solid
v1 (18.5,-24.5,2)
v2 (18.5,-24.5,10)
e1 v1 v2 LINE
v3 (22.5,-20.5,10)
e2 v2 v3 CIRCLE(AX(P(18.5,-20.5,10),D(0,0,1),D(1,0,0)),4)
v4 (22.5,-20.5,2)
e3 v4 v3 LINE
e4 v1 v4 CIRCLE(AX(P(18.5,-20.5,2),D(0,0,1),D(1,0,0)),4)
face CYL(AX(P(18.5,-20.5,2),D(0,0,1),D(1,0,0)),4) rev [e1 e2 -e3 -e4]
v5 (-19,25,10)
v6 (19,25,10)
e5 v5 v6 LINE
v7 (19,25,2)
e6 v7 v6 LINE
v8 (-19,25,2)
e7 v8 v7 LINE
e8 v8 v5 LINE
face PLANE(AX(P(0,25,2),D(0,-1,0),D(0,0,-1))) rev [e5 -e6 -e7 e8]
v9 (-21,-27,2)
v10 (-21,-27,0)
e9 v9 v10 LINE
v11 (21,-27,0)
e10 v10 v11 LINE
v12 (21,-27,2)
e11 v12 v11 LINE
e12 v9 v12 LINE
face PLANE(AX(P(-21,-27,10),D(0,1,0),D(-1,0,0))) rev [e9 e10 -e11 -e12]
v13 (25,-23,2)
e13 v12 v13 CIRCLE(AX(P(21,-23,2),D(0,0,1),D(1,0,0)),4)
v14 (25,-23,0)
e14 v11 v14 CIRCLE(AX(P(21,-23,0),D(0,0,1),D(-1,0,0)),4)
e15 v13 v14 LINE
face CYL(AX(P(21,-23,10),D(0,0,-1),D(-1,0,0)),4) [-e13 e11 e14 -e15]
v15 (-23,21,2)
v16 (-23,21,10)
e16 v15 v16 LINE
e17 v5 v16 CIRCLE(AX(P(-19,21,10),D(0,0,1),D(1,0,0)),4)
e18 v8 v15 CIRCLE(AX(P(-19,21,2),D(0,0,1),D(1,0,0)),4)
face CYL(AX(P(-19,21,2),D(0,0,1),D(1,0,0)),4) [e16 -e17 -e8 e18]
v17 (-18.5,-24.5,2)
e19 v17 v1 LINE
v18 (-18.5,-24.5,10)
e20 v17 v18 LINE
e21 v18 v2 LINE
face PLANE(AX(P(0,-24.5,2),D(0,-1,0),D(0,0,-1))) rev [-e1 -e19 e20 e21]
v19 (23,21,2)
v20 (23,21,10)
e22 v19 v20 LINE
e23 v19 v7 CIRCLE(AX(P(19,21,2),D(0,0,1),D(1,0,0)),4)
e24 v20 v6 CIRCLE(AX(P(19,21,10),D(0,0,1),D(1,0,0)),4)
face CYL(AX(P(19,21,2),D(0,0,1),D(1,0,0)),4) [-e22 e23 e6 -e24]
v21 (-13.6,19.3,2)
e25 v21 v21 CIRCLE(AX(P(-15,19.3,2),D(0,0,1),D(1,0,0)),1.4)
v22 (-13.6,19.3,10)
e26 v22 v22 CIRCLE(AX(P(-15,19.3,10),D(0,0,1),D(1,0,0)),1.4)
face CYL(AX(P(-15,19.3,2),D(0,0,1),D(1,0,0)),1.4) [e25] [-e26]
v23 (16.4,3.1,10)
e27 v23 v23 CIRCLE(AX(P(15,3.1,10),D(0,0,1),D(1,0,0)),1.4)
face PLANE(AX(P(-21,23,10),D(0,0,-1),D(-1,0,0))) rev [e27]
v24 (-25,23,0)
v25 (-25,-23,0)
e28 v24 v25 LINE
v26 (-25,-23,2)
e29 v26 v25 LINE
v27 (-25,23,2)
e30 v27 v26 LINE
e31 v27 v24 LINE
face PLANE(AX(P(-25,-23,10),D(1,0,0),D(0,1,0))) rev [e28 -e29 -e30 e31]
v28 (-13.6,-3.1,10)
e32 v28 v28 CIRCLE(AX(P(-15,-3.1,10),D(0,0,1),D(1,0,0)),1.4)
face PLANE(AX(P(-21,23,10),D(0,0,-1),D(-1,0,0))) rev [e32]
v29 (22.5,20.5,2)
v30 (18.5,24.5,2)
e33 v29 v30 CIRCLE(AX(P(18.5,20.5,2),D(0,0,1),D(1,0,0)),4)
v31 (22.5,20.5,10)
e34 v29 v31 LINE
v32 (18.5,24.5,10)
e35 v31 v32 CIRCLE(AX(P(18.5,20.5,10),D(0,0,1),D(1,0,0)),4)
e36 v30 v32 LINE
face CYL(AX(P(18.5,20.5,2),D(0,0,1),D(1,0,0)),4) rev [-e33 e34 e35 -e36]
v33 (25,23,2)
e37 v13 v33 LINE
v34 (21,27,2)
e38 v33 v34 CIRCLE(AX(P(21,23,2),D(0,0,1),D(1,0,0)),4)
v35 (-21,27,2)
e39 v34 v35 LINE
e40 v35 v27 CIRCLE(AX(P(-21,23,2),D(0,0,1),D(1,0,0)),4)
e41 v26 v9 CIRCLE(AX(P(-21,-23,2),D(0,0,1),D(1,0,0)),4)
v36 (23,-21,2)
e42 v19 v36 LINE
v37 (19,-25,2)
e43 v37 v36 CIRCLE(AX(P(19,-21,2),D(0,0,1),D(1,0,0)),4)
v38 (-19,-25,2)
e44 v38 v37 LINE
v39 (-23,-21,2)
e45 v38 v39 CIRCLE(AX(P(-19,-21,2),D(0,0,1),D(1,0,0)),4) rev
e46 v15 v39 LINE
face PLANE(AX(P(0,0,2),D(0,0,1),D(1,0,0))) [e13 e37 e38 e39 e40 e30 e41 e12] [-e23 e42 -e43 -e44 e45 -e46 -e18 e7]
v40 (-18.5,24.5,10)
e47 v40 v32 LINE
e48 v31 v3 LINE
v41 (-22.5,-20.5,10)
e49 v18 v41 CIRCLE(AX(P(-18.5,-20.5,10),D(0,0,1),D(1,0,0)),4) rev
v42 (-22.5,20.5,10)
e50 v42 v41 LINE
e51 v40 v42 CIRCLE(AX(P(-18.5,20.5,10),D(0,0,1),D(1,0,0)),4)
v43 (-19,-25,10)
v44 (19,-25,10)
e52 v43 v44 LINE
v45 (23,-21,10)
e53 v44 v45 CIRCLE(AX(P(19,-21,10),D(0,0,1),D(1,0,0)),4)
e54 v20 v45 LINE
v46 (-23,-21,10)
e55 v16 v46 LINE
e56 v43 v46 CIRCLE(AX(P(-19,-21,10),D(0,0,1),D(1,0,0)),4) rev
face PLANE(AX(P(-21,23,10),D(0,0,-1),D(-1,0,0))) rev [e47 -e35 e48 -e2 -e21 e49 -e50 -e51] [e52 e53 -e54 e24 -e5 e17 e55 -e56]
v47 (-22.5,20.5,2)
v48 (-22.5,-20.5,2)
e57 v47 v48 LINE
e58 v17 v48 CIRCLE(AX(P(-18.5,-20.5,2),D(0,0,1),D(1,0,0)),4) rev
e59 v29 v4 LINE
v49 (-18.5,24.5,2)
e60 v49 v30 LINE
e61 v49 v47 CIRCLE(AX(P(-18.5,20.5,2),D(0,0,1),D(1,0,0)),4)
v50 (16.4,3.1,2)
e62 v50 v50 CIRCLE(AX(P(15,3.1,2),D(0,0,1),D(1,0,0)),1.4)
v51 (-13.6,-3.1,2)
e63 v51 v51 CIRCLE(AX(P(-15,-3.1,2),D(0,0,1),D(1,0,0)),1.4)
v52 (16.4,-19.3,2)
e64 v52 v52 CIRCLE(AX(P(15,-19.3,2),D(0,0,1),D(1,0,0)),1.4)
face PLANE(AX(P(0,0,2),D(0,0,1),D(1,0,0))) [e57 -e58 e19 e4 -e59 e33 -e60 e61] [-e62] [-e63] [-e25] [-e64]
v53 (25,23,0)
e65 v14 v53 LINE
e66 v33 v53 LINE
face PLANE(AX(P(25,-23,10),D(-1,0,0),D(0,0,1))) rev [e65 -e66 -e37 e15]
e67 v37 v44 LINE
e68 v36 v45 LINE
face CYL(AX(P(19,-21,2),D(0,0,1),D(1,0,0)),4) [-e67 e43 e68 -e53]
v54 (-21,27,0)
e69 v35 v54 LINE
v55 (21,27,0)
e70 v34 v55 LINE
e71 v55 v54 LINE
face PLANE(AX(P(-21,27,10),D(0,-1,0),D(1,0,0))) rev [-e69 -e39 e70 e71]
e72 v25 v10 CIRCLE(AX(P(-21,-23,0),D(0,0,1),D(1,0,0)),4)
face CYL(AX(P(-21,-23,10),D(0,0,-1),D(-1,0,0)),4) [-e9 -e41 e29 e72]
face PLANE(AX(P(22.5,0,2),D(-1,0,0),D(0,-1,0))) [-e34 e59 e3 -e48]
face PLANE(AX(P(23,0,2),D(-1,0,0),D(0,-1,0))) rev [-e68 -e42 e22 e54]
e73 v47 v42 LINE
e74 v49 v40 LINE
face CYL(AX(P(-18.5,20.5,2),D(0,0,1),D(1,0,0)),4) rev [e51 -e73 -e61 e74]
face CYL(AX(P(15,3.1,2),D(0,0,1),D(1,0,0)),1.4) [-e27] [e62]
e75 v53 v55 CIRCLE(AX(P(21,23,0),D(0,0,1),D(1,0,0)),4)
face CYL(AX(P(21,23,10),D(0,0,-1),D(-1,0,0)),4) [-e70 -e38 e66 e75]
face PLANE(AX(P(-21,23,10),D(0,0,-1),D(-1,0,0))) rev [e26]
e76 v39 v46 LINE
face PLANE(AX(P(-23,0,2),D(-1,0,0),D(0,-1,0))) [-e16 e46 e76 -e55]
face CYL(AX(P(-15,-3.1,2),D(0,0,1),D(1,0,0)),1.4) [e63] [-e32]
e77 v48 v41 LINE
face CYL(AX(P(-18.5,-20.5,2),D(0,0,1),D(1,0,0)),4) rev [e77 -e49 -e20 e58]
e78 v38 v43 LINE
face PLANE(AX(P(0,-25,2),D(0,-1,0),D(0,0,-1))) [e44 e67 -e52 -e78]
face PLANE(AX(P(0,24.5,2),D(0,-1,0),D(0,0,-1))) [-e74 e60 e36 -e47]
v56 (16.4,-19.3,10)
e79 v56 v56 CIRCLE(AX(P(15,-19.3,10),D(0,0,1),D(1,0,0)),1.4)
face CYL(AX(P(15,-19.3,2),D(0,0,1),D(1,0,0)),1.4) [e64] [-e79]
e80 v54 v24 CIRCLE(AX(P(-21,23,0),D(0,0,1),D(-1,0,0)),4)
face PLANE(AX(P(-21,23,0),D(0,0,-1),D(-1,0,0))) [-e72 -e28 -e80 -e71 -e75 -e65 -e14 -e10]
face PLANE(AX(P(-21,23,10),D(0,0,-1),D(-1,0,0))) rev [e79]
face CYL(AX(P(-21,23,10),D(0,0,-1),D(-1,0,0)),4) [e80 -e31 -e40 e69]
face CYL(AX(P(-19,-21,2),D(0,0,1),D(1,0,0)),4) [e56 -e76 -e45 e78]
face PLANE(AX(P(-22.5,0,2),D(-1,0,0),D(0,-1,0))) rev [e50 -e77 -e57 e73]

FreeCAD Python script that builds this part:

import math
import FreeCAD as App
import Part
import Sketcher
from FreeCAD import Vector

doc = App.newDocument("Part")
body = doc.addObject("PartDesign::Body", "Body")

# Sketch on XY plane
sketch1 = body.newObject("Sketcher::SketchObject", "Sketch")
sketch1.AttachmentSupport = (doc.getObject("XY_Plane"), [""])
sketch1.MapMode = "FlatFace"
sketch1.addGeometry([
    Part.LineSegment(Vector(-21, -27, 0), Vector(21, -27, 0)),  # 0
    Part.ArcOfCircle(Part.Circle(Vector(21, -23, 0), Vector(0, 0, 1), 4), math.radians(-90), math.radians(0)),  # 1
    Part.LineSegment(Vector(25, -23, 0), Vector(25, 23, 0)),  # 2
    Part.ArcOfCircle(Part.Circle(Vector(21, 23, 0), Vector(0, 0, 1), 4), math.radians(0), math.radians(90)),  # 3
    Part.LineSegment(Vector(21, 27, 0), Vector(-21, 27, 0)),  # 4
    Part.ArcOfCircle(Part.Circle(Vector(-21, 23, 0), Vector(0, 0, 1), 4), math.radians(90), math.radians(180)),  # 5
    Part.LineSegment(Vector(-25, 23, 0), Vector(-25, -23, 0)),  # 6
    Part.ArcOfCircle(Part.Circle(Vector(-21, -23, 0), Vector(0, 0, 1), 4), math.radians(180), math.radians(270)),  # 7
], False)
sketch1.addConstraint([
    Sketcher.Constraint("Tangent", 0, 2, 1, 1),
    Sketcher.Constraint("Tangent", 1, 2, 2, 1),
    Sketcher.Constraint("Tangent", 2, 2, 3, 1),
    Sketcher.Constraint("Tangent", 3, 2, 4, 1),
    Sketcher.Constraint("Tangent", 4, 2, 5, 1),
    Sketcher.Constraint("Tangent", 5, 2, 6, 1),
    Sketcher.Constraint("Tangent", 6, 2, 7, 1),
    Sketcher.Constraint("Tangent", 7, 2, 0, 1),
    Sketcher.Constraint("Horizontal", 0),
    Sketcher.Constraint("Vertical", 2),
    Sketcher.Constraint("Horizontal", 4),
    Sketcher.Constraint("Vertical", 6),
    Sketcher.Constraint("Equal", 1, 3),
    Sketcher.Constraint("Equal", 3, 5),
    Sketcher.Constraint("Equal", 5, 7),
    Sketcher.Constraint("Symmetric", 1, 3, 5, 3, -1, 1),
    Sketcher.Constraint("Radius", 1, 4.0),
    Sketcher.Constraint("DistanceX", 0, 1, 0, 2, 42.0),
    Sketcher.Constraint("DistanceY", 2, 1, 2, 2, 46.0),
])
pad1 = body.newObject("PartDesign::Pad", "Pad")
pad1.Profile = sketch1
pad1.Length = 10

# Sketch on XY plane
sketch2 = body.newObject("Sketcher::SketchObject", "Sketch001")
sketch2.AttachmentSupport = (doc.getObject("XY_Plane"), [""])
sketch2.MapMode = "FlatFace"
sketch2.AttachmentOffset = App.Placement(Vector(0, 0, 10), App.Rotation())
sketch2.addGeometry([
    Part.LineSegment(Vector(21, 27, 0), Vector(-21, 27, 0)),  # 0
    Part.ArcOfCircle(Part.Circle(Vector(-21, 23, 0), Vector(0, 0, 1), 4), math.radians(90), math.radians(180)),  # 1
    Part.LineSegment(Vector(-25, 23, 0), Vector(-25, -23, 0)),  # 2
    Part.ArcOfCircle(Part.Circle(Vector(-21, -23, 0), Vector(0, 0, 1), 4), math.radians(180), math.radians(270)),  # 3
    Part.LineSegment(Vector(-21, -27, 0), Vector(21, -27, 0)),  # 4
    Part.ArcOfCircle(Part.Circle(Vector(21, -23, 0), Vector(0, 0, 1), 4), math.radians(-90), math.radians(0)),  # 5
    Part.LineSegment(Vector(25, -23, 0), Vector(25, 23, 0)),  # 6
    Part.ArcOfCircle(Part.Circle(Vector(21, 23, 0), Vector(0, 0, 1), 4), math.radians(0), math.radians(90)),  # 7
    Part.LineSegment(Vector(19, -25, 0), Vector(-19, -25, 0)),  # 8
    Part.ArcOfCircle(Part.Circle(Vector(-19, -21, 0), Vector(0, 0, 1), 4), math.radians(180), math.radians(270)),  # 9
    Part.LineSegment(Vector(-23, -21, 0), Vector(-23, 21, 0)),  # 10
    Part.ArcOfCircle(Part.Circle(Vector(-19, 21, 0), Vector(0, 0, 1), 4), math.radians(90), math.radians(180)),  # 11
    Part.LineSegment(Vector(-19, 25, 0), Vector(19, 25, 0)),  # 12
    Part.ArcOfCircle(Part.Circle(Vector(19, 21, 0), Vector(0, 0, 1), 4), math.radians(0), math.radians(90)),  # 13
    Part.LineSegment(Vector(23, 21, 0), Vector(23, -21, 0)),  # 14
    Part.ArcOfCircle(Part.Circle(Vector(19, -21, 0), Vector(0, 0, 1), 4), math.radians(-90), math.radians(0)),  # 15
    Part.LineSegment(Vector(-18.5, -24.5, 0), Vector(18.5, -24.5, 0)),  # 16
    Part.ArcOfCircle(Part.Circle(Vector(18.5, -20.5, 0), Vector(0, 0, 1), 4), math.radians(-90), math.radians(0)),  # 17
    Part.LineSegment(Vector(22.5, -20.5, 0), Vector(22.5, 20.5, 0)),  # 18
    Part.ArcOfCircle(Part.Circle(Vector(18.5, 20.5, 0), Vector(0, 0, 1), 4), math.radians(0), math.radians(90)),  # 19
    Part.LineSegment(Vector(18.5, 24.5, 0), Vector(-18.5, 24.5, 0)),  # 20
    Part.ArcOfCircle(Part.Circle(Vector(-18.5, 20.5, 0), Vector(0, 0, 1), 4), math.radians(90), math.radians(180)),  # 21
    Part.LineSegment(Vector(-22.5, 20.5, 0), Vector(-22.5, -20.5, 0)),  # 22
    Part.ArcOfCircle(Part.Circle(Vector(-18.5, -20.5, 0), Vector(0, 0, 1), 4), math.radians(180), math.radians(270)),  # 23
    Part.Circle(Vector(-15, -3.1, 0), Vector(0, 0, 1), 1.4),  # 24
    Part.Circle(Vector(15, -19.3, 0), Vector(0, 0, 1), 1.4),  # 25
    Part.Circle(Vector(-15, 19.3, 0), Vector(0, 0, 1), 1.4),  # 26
    Part.Circle(Vector(15, 3.1, 0), Vector(0, 0, 1), 1.4),  # 27
], False)
sketch2.addConstraint([
    Sketcher.Constraint("Tangent", 0, 2, 1, 1),
    Sketcher.Constraint("Tangent", 1, 2, 2, 1),
    Sketcher.Constraint("Tangent", 2, 2, 3, 1),
    Sketcher.Constraint("Tangent", 3, 2, 4, 1),
    Sketcher.Constraint("Tangent", 4, 2, 5, 1),
    Sketcher.Constraint("Tangent", 5, 2, 6, 1),
    Sketcher.Constraint("Tangent", 6, 2, 7, 1),
    Sketcher.Constraint("Tangent", 7, 2, 0, 1),
    Sketcher.Constraint("Tangent", 8, 2, 9, 2),
    Sketcher.Constraint("Tangent", 9, 1, 10, 1),
    Sketcher.Constraint("Tangent", 10, 2, 11, 2),
    Sketcher.Constraint("Tangent", 11, 1, 12, 1),
    Sketcher.Constraint("Tangent", 12, 2, 13, 2),
    Sketcher.Constraint("Tangent", 13, 1, 14, 1),
    Sketcher.Constraint("Tangent", 14, 2, 15, 2),
    Sketcher.Constraint("Tangent", 15, 1, 8, 1),
    Sketcher.Constraint("Tangent", 16, 2, 17, 1),
    Sketcher.Constraint("Tangent", 17, 2, 18, 1),
    Sketcher.Constraint("Tangent", 18, 2, 19, 1),
    Sketcher.Constraint("Tangent", 19, 2, 20, 1),
    Sketcher.Constraint("Tangent", 20, 2, 21, 1),
    Sketcher.Constraint("Tangent", 21, 2, 22, 1),
    Sketcher.Constraint("Tangent", 22, 2, 23, 1),
    Sketcher.Constraint("Tangent", 23, 2, 16, 1),
    Sketcher.Constraint("Horizontal", 0),
    Sketcher.Constraint("Vertical", 2),
    Sketcher.Constraint("Horizontal", 4),
    Sketcher.Constraint("Vertical", 6),
    Sketcher.Constraint("Horizontal", 8),
    Sketcher.Constraint("Vertical", 10),
    Sketcher.Constraint("Horizontal", 12),
    Sketcher.Constraint("Vertical", 14),
    Sketcher.Constraint("Horizontal", 16),
    Sketcher.Constraint("Vertical", 18),
    Sketcher.Constraint("Horizontal", 20),
    Sketcher.Constraint("Vertical", 22),
    Sketcher.Constraint("Equal", 1, 3),
    Sketcher.Constraint("Equal", 3, 5),
    Sketcher.Constraint("Equal", 5, 7),
    Sketcher.Constraint("Equal", 7, 9),
    Sketcher.Constraint("Equal", 9, 11),
    Sketcher.Constraint("Equal", 11, 13),
    Sketcher.Constraint("Equal", 13, 15),
    Sketcher.Constraint("Equal", 15, 17),
    Sketcher.Constraint("Equal", 17, 19),
    Sketcher.Constraint("Equal", 19, 21),
    Sketcher.Constraint("Equal", 21, 23),
    Sketcher.Constraint("Equal", 24, 25),
    Sketcher.Constraint("Equal", 25, 26),
    Sketcher.Constraint("Equal", 26, 27),
    Sketcher.Constraint("Symmetric", 1, 3, 5, 3, -1, 1),
    Sketcher.Constraint("Symmetric", 9, 3, 13, 3, -1, 1),
    Sketcher.Constraint("Symmetric", 17, 3, 21, 3, -1, 1),
    Sketcher.Constraint("Symmetric", 25, 3, 26, 3, -1, 1),
    Sketcher.Constraint("Symmetric", 24, 3, 27, 3, -1, 1),
    Sketcher.Constraint("Vertical", 24, 3, 26, 3),
    Sketcher.Constraint("Equal", 4, 10),
    Sketcher.Constraint("Radius", 1, 4.0),
    Sketcher.Constraint("Diameter", 24, 2.8),
    Sketcher.Constraint("DistanceX", 0, 2, 0, 1, 42.0),
    Sketcher.Constraint("DistanceX", 8, 2, 8, 1, 38.0),
    Sketcher.Constraint("DistanceX", 16, 1, 16, 2, 37.0),
    Sketcher.Constraint("DistanceY", 2, 2, 2, 1, 46.0),
    Sketcher.Constraint("DistanceY", 18, 1, 18, 2, 41.0),
    Sketcher.Constraint("DistanceX", 24, 3, -1, 1, 15.0),
    Sketcher.Constraint("DistanceY", 24, 3, -1, 1, 3.1),
    Sketcher.Constraint("DistanceY", 25, 3, -1, 1, 19.3),
])
pocket1 = body.newObject("PartDesign::Pocket", "Pocket")
pocket1.Profile = sketch2
pocket1.Length = 8

doc.recompute()
